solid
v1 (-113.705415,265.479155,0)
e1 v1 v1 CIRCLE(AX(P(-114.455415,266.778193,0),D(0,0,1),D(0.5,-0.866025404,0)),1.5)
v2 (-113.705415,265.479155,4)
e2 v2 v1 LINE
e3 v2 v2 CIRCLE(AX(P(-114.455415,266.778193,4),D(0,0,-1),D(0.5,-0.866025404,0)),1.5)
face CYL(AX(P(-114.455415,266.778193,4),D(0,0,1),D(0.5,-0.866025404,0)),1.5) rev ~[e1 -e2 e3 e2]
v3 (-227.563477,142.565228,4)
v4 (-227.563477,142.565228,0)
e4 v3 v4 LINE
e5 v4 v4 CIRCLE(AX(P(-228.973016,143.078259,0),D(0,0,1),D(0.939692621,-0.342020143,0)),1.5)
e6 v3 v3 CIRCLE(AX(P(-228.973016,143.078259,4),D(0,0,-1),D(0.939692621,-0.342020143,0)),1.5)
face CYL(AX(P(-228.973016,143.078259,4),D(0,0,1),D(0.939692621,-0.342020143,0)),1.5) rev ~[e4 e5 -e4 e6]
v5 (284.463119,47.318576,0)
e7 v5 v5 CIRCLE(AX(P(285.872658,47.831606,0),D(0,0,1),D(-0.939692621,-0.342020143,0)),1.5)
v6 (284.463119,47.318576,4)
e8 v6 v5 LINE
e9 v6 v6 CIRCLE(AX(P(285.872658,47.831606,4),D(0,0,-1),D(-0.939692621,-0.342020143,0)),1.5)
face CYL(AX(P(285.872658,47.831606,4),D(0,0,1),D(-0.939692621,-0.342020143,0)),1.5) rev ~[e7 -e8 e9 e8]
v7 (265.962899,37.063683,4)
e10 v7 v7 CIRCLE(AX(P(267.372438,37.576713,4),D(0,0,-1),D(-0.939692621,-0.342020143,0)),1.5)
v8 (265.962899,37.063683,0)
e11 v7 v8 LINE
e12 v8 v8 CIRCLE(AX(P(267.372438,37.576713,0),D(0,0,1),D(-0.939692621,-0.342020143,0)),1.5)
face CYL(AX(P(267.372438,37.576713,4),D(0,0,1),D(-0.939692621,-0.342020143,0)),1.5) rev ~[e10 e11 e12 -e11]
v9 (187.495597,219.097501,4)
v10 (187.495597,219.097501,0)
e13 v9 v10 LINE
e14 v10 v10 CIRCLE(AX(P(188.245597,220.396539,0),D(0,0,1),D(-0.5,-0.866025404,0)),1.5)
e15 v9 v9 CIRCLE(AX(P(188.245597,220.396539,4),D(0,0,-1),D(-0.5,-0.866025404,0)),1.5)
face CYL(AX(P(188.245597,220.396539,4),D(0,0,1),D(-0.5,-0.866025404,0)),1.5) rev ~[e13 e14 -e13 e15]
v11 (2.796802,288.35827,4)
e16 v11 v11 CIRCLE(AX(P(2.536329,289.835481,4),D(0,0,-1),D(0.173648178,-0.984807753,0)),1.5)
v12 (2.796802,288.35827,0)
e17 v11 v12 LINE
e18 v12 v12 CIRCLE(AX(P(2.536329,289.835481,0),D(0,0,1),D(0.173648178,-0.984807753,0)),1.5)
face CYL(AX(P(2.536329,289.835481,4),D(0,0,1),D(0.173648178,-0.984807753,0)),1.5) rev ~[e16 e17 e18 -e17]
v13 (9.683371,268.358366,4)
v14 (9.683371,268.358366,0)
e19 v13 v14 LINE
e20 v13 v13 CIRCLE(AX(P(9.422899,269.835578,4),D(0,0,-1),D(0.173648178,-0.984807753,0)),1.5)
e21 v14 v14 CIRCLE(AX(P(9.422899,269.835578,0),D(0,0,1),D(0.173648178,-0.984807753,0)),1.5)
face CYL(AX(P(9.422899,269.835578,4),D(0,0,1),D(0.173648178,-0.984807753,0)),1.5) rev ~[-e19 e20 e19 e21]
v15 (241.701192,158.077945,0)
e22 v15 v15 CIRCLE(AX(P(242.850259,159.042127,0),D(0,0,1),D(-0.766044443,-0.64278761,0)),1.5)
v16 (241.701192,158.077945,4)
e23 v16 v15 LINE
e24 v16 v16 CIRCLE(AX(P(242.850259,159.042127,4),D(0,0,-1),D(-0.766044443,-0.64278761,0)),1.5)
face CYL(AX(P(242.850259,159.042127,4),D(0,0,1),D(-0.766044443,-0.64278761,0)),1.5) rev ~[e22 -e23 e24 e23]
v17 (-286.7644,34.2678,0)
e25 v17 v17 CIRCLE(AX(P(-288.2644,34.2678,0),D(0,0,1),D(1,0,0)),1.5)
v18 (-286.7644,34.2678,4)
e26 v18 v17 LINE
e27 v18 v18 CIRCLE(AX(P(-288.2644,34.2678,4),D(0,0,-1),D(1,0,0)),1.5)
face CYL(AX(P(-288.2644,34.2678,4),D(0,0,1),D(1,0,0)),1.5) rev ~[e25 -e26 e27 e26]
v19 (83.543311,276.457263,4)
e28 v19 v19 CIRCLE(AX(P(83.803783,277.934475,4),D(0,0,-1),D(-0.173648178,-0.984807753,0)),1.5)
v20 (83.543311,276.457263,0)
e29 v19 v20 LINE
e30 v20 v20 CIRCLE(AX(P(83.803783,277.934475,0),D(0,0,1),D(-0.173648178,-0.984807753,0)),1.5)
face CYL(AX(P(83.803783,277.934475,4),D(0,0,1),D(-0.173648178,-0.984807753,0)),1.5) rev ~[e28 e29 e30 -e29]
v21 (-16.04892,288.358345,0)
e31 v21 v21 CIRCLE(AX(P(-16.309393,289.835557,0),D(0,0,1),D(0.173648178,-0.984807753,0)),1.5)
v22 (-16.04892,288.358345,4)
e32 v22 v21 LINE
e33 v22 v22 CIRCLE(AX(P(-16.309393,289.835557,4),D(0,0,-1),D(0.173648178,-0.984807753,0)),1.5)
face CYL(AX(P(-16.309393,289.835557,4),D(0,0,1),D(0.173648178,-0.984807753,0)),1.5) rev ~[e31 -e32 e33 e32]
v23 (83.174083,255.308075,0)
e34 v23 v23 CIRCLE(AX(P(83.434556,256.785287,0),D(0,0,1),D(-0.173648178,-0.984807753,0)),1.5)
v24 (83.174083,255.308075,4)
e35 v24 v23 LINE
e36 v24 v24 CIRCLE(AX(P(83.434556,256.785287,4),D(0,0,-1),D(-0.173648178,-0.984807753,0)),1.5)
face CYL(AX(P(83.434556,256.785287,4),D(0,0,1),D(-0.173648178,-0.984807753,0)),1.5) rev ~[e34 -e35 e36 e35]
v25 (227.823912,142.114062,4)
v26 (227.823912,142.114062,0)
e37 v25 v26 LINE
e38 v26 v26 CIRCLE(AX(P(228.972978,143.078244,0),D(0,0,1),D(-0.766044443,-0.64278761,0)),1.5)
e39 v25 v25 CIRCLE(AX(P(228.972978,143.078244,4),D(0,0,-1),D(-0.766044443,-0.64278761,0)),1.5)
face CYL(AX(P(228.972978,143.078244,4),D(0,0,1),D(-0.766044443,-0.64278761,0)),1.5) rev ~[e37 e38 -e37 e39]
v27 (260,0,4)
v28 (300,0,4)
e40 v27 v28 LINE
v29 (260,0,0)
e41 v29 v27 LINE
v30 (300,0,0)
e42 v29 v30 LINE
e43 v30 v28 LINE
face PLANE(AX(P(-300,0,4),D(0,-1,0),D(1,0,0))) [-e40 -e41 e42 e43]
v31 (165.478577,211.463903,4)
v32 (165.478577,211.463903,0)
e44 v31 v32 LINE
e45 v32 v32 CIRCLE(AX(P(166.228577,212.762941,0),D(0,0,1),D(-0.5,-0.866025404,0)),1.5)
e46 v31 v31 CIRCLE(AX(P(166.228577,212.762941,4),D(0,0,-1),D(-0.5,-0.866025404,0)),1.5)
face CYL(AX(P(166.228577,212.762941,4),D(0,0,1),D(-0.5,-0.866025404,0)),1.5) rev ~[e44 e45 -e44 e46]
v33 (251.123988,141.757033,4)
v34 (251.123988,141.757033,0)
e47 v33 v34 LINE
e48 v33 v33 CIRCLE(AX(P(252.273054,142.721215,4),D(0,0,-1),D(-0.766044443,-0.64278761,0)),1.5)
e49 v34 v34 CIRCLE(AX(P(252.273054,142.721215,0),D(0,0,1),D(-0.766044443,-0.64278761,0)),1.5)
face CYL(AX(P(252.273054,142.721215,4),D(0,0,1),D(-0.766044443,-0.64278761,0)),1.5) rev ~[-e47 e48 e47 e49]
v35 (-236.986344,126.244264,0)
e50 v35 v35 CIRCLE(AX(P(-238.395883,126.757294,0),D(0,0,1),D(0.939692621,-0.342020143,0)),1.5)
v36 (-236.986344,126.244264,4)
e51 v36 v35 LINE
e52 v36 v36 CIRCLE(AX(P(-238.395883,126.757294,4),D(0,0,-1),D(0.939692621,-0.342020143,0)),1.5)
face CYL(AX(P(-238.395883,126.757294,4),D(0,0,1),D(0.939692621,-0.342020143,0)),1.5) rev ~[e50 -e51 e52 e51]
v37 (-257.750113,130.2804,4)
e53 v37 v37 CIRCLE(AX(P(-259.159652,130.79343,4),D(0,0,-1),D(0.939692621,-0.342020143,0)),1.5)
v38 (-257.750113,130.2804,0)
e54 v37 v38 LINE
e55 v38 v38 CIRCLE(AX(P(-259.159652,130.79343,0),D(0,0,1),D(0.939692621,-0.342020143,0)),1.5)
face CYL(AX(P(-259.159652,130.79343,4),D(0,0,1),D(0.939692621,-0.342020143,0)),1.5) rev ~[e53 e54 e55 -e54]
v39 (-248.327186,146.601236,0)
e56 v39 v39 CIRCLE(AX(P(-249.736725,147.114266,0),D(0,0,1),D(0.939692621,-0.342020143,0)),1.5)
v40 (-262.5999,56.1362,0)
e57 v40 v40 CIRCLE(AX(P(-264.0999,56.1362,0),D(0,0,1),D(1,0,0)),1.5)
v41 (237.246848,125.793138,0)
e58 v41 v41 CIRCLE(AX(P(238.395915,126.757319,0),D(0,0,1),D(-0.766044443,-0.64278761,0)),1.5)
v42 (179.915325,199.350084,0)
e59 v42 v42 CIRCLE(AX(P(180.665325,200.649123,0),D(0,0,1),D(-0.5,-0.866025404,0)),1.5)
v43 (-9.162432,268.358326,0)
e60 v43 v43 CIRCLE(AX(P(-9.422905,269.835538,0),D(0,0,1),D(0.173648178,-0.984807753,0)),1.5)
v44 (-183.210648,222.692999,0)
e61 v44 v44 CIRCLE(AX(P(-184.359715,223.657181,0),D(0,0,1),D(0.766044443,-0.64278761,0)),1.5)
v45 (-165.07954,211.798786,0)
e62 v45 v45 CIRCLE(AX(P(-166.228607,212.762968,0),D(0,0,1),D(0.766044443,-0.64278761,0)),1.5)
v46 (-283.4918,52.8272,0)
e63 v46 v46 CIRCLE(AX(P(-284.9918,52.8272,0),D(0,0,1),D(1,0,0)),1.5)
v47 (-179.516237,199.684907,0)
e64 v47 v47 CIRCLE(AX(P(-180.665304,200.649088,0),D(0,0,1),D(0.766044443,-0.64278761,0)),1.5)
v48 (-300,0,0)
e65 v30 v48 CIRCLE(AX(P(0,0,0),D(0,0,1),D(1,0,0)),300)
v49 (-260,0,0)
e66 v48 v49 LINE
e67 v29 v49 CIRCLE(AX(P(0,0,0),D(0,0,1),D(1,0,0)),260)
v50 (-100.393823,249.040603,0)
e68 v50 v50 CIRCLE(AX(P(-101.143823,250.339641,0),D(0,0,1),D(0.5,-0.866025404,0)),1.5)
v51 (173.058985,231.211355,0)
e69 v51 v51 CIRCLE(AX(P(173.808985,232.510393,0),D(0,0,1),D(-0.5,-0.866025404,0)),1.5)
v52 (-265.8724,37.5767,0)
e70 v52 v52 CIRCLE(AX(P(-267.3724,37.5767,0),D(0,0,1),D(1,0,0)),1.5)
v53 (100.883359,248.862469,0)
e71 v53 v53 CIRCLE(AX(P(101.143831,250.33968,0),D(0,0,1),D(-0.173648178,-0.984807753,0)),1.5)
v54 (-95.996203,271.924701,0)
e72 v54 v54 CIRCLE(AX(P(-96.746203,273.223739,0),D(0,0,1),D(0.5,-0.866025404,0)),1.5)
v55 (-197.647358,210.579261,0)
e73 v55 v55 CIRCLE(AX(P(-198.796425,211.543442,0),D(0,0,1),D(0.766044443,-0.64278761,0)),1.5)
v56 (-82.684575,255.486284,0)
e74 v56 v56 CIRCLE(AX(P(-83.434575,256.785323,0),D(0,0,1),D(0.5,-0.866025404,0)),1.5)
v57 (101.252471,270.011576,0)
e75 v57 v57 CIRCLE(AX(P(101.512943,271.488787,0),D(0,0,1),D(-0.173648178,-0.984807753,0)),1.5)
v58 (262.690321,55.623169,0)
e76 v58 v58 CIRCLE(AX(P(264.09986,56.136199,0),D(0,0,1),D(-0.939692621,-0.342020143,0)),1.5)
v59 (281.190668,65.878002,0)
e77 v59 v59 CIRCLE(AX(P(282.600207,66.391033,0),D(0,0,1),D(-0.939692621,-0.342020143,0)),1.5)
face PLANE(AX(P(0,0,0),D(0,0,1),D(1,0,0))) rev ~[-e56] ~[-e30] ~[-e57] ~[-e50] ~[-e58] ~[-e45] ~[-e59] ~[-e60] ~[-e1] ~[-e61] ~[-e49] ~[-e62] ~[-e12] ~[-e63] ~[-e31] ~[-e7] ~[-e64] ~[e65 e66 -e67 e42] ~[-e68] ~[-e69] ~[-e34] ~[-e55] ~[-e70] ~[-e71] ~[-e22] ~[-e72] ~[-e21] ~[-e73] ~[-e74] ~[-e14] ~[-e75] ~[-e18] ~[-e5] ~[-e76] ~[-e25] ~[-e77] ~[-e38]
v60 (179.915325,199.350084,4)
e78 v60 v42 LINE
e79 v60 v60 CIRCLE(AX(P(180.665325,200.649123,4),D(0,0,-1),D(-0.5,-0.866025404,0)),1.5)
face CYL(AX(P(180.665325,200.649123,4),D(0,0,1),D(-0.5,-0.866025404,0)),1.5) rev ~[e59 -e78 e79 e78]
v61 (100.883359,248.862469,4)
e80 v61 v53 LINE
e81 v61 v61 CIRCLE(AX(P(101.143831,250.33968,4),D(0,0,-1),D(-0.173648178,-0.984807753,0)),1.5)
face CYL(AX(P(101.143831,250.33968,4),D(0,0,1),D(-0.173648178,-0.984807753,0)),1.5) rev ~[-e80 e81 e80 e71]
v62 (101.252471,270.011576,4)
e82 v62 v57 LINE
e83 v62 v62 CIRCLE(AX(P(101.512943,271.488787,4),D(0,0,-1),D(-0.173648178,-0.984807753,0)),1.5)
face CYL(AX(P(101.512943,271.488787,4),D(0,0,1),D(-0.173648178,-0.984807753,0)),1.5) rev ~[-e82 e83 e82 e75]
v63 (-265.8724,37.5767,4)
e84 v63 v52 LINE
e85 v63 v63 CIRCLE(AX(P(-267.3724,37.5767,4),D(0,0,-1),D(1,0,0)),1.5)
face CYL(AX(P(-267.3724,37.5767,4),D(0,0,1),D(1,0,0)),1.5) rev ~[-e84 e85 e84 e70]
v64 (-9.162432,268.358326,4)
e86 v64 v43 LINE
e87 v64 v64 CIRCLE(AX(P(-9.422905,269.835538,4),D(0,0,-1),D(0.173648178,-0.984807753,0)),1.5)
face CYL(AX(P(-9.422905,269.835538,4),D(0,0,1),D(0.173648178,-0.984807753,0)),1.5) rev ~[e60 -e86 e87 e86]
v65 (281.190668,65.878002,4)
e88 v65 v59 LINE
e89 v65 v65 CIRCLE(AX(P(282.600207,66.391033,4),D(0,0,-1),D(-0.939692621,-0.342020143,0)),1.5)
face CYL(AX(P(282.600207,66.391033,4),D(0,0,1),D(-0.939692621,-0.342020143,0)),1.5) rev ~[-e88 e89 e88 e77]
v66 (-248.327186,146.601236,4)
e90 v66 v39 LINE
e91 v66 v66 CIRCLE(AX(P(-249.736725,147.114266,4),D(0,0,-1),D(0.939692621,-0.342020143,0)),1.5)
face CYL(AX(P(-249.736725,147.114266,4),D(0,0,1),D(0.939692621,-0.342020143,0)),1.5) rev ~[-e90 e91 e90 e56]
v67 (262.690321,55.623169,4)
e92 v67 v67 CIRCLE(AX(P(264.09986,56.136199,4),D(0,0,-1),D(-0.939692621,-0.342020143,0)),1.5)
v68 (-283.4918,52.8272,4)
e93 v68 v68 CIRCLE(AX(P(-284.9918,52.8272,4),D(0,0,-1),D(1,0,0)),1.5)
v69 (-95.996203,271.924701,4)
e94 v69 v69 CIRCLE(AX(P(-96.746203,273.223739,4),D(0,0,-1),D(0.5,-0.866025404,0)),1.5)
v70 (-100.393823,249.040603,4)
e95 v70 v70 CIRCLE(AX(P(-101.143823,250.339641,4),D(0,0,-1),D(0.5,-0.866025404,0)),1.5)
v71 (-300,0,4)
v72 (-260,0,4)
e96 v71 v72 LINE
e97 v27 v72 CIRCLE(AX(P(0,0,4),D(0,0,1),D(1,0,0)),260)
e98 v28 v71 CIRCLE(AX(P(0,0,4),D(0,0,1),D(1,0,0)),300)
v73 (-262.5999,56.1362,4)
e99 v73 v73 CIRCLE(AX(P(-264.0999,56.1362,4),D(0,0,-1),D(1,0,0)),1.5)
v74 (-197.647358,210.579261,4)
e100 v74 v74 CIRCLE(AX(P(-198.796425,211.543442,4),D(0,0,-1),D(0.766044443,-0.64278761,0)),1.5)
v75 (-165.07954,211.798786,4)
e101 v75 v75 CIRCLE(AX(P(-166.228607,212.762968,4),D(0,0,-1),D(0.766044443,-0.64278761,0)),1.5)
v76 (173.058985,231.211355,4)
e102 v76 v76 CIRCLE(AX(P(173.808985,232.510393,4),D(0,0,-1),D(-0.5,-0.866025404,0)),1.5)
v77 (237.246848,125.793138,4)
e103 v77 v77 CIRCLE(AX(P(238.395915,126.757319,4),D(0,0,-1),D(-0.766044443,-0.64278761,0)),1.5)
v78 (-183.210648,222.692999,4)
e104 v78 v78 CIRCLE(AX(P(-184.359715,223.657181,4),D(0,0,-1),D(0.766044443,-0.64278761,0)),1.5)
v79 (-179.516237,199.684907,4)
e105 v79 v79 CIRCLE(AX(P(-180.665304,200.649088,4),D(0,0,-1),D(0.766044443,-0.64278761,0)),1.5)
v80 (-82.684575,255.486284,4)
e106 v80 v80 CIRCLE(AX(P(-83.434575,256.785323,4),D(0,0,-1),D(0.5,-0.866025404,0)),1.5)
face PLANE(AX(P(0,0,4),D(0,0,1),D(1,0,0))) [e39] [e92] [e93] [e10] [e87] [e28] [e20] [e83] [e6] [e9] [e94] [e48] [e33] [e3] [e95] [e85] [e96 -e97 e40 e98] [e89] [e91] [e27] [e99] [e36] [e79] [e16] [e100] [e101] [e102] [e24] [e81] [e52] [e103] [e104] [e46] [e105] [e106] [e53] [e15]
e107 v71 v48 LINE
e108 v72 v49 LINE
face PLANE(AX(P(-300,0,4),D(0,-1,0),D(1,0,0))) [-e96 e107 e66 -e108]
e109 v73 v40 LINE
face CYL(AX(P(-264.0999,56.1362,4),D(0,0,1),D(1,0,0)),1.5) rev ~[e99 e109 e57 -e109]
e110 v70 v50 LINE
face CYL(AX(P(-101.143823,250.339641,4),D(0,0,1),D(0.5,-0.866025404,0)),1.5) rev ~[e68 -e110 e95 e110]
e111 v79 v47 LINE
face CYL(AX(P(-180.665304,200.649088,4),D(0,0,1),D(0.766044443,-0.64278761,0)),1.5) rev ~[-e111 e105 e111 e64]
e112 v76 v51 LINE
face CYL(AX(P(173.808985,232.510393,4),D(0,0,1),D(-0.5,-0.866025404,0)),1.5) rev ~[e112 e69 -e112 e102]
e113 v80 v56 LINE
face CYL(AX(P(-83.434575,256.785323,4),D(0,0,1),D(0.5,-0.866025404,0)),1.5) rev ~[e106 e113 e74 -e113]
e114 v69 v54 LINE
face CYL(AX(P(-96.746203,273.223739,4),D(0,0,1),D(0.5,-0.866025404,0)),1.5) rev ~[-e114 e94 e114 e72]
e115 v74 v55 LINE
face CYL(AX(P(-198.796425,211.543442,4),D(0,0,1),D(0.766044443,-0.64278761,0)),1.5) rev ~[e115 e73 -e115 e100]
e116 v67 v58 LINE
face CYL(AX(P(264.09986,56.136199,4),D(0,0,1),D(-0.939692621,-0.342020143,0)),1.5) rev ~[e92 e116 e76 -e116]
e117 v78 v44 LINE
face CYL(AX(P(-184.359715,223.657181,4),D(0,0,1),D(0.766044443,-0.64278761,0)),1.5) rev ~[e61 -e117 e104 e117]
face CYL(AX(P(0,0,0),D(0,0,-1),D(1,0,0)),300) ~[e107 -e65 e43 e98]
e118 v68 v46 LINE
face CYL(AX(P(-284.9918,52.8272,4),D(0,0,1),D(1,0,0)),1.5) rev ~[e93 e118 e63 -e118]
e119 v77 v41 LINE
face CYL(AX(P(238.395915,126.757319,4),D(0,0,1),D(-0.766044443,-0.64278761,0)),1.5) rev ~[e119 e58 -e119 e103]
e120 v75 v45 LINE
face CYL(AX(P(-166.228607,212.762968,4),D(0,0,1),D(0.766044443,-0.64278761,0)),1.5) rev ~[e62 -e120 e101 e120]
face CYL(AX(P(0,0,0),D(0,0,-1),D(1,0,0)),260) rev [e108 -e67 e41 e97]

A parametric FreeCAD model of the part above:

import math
import FreeCAD as App
import Part
import Sketcher
from FreeCAD import Vector

doc = App.newDocument("Part")
body = doc.addObject("PartDesign::Body", "Body")

# Sketch on XY plane
sketch1 = body.newObject("Sketcher::SketchObject", "Sketch")
sketch1.AttachmentSupport = (doc.getObject("XY_Plane"), [""])
sketch1.MapMode = "FlatFace"
sketch1.addGeometry([
    Part.Circle(Vector(0, 0, 0), Vector(0, 0, 1), 300),
    Part.Circle(Vector(0, 0, 0), Vector(0, 0, 1), 260),
], False)
sketch1.addConstraint([
    Sketcher.Constraint("Coincident", 0, 3, -1, 1),
    Sketcher.Constraint("Coincident", 1, 3, -1, 1),
    Sketcher.Constraint("Diameter", 0, 600.0),
    Sketcher.Constraint("Diameter", 1, 520.0),
])
pad1 = body.newObject("PartDesign::Pad", "Pad")
pad1.Profile = sketch1
pad1.Length = 4

# Sketch on XY plane
sketch2 = body.newObject("Sketcher::SketchObject", "Sketch001")
sketch2.AttachmentSupport = (doc.getObject("XY_Plane"), [""])
sketch2.MapMode = "FlatFace"
sketch2.AttachmentOffset = App.Placement(Vector(0, 0, 4), App.Rotation())
sketch2.addGeometry([
    Part.LineSegment(Vector(300, 0, 0), Vector(-300, 0, 0)),
    Part.ArcOfCircle(Part.Circle(Vector(0, 0, 0), Vector(0, 0, 1), 300), math.radians(180), math.radians(360)),
], False)
sketch2.addConstraint([
    Sketcher.Constraint("Coincident", 0, 1, 1, 2),
    Sketcher.Constraint("Coincident", 1, 1, 0, 2),
    Sketcher.Constraint("Horizontal", 0),
    Sketcher.Constraint("Coincident", 1, 3, -1, 1),
    Sketcher.Constraint("PointOnObject", 0, 1, -1),
    Sketcher.Constraint("Radius", 1, 300.0),
])
pocket1 = body.newObject("PartDesign::Pocket", "Pocket")
pocket1.Profile = sketch2
pocket1.Length = 10

# Sketch on XY plane
sketch3 = body.newObject("Sketcher::SketchObject", "Sketch002")
sketch3.AttachmentSupport = (doc.getObject("XY_Plane"), [""])
sketch3.MapMode = "FlatFace"
sketch3.AttachmentOffset = App.Placement(Vector(0, 0, 4), App.Rotation())
sketch3.addGeometry([
    Part.Circle(Vector(-288.3, 34.3, 0), Vector(0, 0, 1), 1.5),
    Part.Circle(Vector(-267.4, 37.6, 0), Vector(0, 0, 1), 1.5),
    Part.Circle(Vector(-285, 52.8, 0), Vector(0, 0, 1), 1.5),
    Part.Circle(Vector(-264.1, 56.1, 0), Vector(0, 0, 1), 1.5),
], False)
sketch3.addConstraint([
    Sketcher.Constraint("Equal", 0, 1),
    Sketcher.Constraint("Equal", 1, 2),
    Sketcher.Constraint("Equal", 2, 3),
    Sketcher.Constraint("Diameter", 0, 3.0),
    Sketcher.Constraint("DistanceX", 3, 3, -1, 1, 264.1),
    Sketcher.Constraint("DistanceX", 0, 3, 1, 3, 20.892),
    Sketcher.Constraint("DistanceY", 0, 3, 1, 3, 3.309),
    Sketcher.Constraint("DistanceX", 2, 3, 3, 3, 20.892),
    Sketcher.Constraint("DistanceY", 2, 3, 3, 3, 3.309),
    Sketcher.Constraint("DistanceX", 0, 3, -1, 1, 288.2644),
    Sketcher.Constraint("DistanceY", -1, 1, 0, 3, 34.2678),
    Sketcher.Constraint("DistanceY", -1, 1, 2, 3, 52.8272),
])
pocket2 = body.newObject("PartDesign::Pocket", "Pocket001")
pocket2.Profile = sketch3
pocket2.Type = "ThroughAll"
doc.recompute()

polarpattern = body.newObject("PartDesign::PolarPattern", "PolarPattern")
polarpattern.Originals = [pocket2]
polarpattern.Axis = (doc.getObject("Z_Axis"), [""])
polarpattern.Angle = 160
polarpattern.Occurrences = 9
polarpattern.Reversed = True
body.Tip = polarpattern

doc.recompute()
